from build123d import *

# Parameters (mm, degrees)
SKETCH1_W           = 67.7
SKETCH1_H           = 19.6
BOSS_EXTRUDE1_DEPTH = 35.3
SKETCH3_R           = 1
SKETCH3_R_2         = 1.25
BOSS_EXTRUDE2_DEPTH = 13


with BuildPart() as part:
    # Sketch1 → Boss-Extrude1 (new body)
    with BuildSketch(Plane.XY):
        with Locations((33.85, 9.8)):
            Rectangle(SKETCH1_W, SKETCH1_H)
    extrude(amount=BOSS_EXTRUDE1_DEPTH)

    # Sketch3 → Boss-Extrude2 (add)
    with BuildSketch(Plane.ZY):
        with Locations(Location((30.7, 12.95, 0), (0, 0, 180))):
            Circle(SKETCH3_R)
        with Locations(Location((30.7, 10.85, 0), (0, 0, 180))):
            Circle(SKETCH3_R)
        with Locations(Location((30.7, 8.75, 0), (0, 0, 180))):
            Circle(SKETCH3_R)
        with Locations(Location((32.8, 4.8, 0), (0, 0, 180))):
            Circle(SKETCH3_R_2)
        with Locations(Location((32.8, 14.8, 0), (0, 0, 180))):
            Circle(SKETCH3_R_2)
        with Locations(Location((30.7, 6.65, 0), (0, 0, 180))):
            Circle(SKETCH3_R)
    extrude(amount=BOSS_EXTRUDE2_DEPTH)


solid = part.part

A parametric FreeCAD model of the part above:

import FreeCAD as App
import Part
import Sketcher

doc = App.newDocument("Part")
body = doc.addObject("PartDesign::Body", "Body")

# Sketch on XY plane
sketch1 = doc.addObject("Sketcher::SketchObject", "Sketch")
body.addObject(sketch1)
sketch1.AttachmentSupport = (doc.XY_Plane, [""])
sketch1.MapMode = "FlatFace"
sketch1.addGeometry(Part.LineSegment(App.Vector(0, 20, 0), App.Vector(0, 0, 0)), False)
sketch1.addGeometry(Part.LineSegment(App.Vector(0, 0, 0), App.Vector(68, 0, 0)), False)
sketch1.addGeometry(Part.LineSegment(App.Vector(68, 0, 0), App.Vector(68, 20, 0)), False)
sketch1.addGeometry(Part.LineSegment(App.Vector(68, 20, 0), App.Vector(0, 20, 0)), False)
sketch1.addConstraint(Sketcher.Constraint("Coincident", 0, 2, 1, 1))
sketch1.addConstraint(Sketcher.Constraint("Coincident", 1, 2, 2, 1))
sketch1.addConstraint(Sketcher.Constraint("Coincident", 2, 2, 3, 1))
sketch1.addConstraint(Sketcher.Constraint("Coincident", 3, 2, 0, 1))
sketch1.addConstraint(Sketcher.Constraint("Vertical", 0))
sketch1.addConstraint(Sketcher.Constraint("Horizontal", 1))
sketch1.addConstraint(Sketcher.Constraint("Vertical", 2))
sketch1.addConstraint(Sketcher.Constraint("Horizontal", 3))
sketch1.addConstraint(Sketcher.Constraint("Coincident", 0, 2, -1, 1))
sketch1.addConstraint(Sketcher.Constraint("DistanceX", 1, 1, 1, 2, 67.7))
sketch1.addConstraint(Sketcher.Constraint("DistanceY", 0, 2, 0, 1, 19.6))
pad1 = doc.addObject("PartDesign::Pad", "Pad")
body.addObject(pad1)
pad1.Profile = sketch1
pad1.Length = 35.3

# Sketch on YZ plane
sketch2 = doc.addObject("Sketcher::SketchObject", "Sketch001")
body.addObject(sketch2)
sketch2.AttachmentSupport = (doc.YZ_Plane, [""])
sketch2.MapMode = "FlatFace"
sketch2.addGeometry(Part.Circle(App.Vector(12.9, 30.7, 0), App.Vector(0, 0, 1), 1), False)
sketch2.addGeometry(Part.Circle(App.Vector(10.8, 30.7, 0), App.Vector(0, 0, 1), 1), False)
sketch2.addGeometry(Part.Circle(App.Vector(8.8, 30.7, 0), App.Vector(0, 0, 1), 1), False)
sketch2.addGeometry(Part.Circle(App.Vector(4.8, 32.8, 0), App.Vector(0, 0, 1), 1.2), False)
sketch2.addGeometry(Part.Circle(App.Vector(14.8, 32.8, 0), App.Vector(0, 0, 1), 1.2), False)
sketch2.addGeometry(Part.Circle(App.Vector(6.7, 30.7, 0), App.Vector(0, 0, 1), 1), False)
sketch2.addConstraint(Sketcher.Constraint("Equal", 0, 1))
sketch2.addConstraint(Sketcher.Constraint("Equal", 1, 2))
sketch2.addConstraint(Sketcher.Constraint("Equal", 3, 4))
sketch2.addConstraint(Sketcher.Constraint("Equal", 2, 5))
sketch2.addConstraint(Sketcher.Constraint("Horizontal", 0, 3, 1, 3))
sketch2.addConstraint(Sketcher.Constraint("Horizontal", 1, 3, 2, 3))
sketch2.addConstraint(Sketcher.Constraint("Horizontal", 3, 3, 4, 3))
sketch2.addConstraint(Sketcher.Constraint("Horizontal", 2, 3, 5, 3))
sketch2.addConstraint(Sketcher.Constraint("Diameter", 0, 2.0))
sketch2.addConstraint(Sketcher.Constraint("Diameter", 3, 2.5))
sketch2.addConstraint(Sketcher.Constraint("DistanceX", 3, 3, 4, 3, 10.0))
sketch2.addConstraint(Sketcher.Constraint("DistanceY", -1, 1, 0, 3, 30.7))
sketch2.addConstraint(Sketcher.Constraint("DistanceX", -1, 1, 3, 3, 4.8))
sketch2.addConstraint(Sketcher.Constraint("DistanceY", -1, 1, 3, 3, 32.8))
sketch2.addConstraint(Sketcher.Constraint("DistanceX", 1, 3, 0, 3, 2.1))
sketch2.addConstraint(Sketcher.Constraint("DistanceX", 2, 3, 1, 3, 2.1))
sketch2.addConstraint(Sketcher.Constraint("DistanceX", 5, 3, 2, 3, 2.1))
sketch2.addConstraint(Sketcher.Constraint("DistanceX", -1, 1, 0, 3, 12.95))
pad2 = doc.addObject("PartDesign::Pad", "Pad001")
body.addObject(pad2)
pad2.Profile = sketch2
pad2.Length = 13
pad2.Reversed = True

doc.recompute()
